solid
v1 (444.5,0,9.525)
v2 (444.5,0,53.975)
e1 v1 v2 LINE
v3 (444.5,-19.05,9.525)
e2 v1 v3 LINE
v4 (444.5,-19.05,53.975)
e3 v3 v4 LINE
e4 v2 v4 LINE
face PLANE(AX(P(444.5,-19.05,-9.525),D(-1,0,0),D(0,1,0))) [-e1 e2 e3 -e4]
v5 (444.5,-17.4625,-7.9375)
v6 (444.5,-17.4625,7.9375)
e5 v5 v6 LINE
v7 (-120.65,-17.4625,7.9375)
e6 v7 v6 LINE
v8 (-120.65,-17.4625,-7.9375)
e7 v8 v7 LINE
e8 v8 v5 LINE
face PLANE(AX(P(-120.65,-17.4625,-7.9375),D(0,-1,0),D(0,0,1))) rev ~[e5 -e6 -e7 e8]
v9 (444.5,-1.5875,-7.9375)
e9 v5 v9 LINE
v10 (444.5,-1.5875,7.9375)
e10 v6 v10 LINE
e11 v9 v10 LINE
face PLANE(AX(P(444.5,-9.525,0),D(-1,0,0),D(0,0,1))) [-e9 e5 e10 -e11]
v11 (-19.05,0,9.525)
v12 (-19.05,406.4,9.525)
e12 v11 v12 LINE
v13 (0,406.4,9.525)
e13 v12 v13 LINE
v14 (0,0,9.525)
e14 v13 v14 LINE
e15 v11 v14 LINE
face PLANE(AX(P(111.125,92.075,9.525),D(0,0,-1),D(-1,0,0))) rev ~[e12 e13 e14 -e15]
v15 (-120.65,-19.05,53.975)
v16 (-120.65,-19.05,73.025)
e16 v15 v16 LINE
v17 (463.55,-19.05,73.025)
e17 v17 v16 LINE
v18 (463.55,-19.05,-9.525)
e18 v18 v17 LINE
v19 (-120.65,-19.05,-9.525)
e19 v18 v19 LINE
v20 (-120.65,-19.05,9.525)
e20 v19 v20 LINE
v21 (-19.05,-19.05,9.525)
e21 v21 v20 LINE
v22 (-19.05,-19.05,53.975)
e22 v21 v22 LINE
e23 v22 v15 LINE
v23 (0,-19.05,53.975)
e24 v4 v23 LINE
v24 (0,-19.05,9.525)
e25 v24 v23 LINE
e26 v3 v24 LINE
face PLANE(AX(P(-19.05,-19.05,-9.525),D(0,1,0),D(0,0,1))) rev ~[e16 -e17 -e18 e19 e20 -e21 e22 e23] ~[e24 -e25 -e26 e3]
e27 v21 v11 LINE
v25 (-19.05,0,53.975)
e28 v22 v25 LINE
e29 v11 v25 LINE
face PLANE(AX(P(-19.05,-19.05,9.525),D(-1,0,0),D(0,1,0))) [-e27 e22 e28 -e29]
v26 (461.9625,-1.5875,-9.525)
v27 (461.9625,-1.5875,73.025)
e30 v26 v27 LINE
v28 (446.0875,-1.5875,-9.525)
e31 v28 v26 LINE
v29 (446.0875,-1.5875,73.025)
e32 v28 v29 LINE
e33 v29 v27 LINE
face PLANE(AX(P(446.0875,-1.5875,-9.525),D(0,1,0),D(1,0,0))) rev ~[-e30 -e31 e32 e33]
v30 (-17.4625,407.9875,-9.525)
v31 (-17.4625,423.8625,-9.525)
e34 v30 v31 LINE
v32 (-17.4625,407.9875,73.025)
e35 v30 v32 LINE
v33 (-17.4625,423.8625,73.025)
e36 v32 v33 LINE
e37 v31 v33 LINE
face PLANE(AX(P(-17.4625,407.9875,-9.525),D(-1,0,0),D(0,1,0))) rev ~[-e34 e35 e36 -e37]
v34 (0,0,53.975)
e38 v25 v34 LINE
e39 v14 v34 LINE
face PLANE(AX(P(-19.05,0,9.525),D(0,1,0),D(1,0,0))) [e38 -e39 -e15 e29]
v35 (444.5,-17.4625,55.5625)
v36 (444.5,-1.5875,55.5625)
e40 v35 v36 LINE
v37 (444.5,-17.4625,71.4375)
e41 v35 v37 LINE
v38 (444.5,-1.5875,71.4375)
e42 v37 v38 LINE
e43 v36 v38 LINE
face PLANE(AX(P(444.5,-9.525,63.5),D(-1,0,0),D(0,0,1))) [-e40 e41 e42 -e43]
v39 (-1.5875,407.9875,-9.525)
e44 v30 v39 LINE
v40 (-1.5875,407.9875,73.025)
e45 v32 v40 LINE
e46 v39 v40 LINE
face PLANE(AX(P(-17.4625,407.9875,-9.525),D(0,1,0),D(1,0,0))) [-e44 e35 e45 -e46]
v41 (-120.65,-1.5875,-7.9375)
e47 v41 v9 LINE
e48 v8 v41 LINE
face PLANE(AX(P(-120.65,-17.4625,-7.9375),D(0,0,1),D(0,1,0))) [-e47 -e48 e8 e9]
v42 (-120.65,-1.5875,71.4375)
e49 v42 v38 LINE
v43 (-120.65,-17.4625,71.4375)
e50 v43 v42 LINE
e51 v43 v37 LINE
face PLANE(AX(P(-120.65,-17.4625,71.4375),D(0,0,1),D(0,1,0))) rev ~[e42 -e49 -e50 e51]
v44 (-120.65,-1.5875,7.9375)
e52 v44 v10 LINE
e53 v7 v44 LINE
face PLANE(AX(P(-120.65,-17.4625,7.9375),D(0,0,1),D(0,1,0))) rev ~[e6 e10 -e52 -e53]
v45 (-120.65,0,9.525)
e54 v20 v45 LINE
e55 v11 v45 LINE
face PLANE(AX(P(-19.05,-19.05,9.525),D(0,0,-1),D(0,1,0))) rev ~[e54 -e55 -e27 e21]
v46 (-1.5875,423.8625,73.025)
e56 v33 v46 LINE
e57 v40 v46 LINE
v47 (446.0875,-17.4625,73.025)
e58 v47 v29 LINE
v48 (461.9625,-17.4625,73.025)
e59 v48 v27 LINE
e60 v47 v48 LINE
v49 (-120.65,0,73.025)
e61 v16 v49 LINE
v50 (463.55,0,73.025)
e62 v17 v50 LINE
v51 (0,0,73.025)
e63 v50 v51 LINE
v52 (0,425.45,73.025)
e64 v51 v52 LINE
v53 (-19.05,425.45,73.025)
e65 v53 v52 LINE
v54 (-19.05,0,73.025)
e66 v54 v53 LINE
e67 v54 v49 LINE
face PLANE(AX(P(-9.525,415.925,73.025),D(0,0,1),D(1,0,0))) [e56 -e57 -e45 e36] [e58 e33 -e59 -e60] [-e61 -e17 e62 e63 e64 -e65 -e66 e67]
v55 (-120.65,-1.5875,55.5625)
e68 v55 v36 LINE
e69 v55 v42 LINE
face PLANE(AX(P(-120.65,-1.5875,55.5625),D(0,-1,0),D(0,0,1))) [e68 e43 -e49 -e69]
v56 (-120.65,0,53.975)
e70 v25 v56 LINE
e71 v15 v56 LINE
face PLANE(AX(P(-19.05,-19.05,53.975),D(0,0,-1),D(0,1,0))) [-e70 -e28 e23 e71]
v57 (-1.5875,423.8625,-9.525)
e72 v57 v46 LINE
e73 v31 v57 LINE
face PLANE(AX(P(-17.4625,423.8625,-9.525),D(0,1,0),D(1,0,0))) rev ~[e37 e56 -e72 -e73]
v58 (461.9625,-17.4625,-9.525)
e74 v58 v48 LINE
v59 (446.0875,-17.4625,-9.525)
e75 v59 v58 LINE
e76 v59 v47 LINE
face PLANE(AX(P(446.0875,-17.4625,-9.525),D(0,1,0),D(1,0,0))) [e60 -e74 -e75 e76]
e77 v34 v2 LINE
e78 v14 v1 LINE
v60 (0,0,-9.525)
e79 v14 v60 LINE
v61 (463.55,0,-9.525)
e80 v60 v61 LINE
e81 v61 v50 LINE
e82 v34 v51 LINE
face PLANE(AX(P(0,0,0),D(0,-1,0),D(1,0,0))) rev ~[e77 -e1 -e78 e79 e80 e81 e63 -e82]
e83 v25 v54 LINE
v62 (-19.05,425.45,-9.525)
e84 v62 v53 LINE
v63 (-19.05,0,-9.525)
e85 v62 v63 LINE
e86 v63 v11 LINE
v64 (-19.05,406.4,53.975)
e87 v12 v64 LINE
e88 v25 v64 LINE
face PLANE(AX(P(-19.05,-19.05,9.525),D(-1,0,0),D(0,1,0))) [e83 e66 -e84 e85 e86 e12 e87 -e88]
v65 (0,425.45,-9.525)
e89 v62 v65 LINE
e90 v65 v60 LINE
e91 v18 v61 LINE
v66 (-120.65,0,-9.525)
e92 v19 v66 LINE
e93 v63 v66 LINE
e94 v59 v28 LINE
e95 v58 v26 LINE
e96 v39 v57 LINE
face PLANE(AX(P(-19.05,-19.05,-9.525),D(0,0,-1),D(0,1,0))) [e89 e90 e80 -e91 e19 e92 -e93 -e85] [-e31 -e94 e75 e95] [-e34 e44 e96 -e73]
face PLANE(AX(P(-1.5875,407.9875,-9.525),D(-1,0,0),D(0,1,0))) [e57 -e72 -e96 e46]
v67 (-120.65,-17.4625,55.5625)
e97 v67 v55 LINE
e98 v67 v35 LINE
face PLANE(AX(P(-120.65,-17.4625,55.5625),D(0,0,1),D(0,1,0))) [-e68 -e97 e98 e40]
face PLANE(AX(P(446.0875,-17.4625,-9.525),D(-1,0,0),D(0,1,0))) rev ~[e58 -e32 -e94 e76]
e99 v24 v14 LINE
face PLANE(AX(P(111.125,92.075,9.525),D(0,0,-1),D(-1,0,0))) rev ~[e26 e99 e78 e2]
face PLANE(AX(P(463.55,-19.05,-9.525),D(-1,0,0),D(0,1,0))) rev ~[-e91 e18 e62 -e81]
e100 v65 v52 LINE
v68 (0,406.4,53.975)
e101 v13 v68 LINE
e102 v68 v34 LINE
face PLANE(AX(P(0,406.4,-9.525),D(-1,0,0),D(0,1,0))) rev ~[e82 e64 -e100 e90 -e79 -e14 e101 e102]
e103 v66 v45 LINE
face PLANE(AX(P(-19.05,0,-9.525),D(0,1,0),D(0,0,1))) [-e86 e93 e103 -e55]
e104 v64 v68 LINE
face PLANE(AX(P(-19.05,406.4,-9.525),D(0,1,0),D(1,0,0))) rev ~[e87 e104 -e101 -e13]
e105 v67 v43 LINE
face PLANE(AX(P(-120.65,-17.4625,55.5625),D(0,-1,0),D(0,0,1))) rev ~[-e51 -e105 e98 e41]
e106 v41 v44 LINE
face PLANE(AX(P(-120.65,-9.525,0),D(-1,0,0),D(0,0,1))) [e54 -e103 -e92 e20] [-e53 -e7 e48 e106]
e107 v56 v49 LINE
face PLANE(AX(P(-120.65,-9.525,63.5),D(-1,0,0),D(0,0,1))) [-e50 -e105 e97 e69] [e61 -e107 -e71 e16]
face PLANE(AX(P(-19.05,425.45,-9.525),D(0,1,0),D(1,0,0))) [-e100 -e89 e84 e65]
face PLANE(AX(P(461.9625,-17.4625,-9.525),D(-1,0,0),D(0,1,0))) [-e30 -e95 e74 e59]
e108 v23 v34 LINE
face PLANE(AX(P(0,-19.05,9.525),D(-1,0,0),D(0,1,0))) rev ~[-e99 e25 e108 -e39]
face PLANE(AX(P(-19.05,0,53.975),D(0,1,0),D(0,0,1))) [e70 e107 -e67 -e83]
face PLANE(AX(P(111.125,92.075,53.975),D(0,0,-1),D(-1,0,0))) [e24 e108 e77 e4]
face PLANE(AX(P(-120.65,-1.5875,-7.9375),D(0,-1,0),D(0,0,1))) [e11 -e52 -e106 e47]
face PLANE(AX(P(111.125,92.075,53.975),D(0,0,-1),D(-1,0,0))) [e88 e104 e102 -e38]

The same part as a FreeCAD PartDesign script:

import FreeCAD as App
import Part
import Sketcher
from FreeCAD import Vector
Q = App.Units.Quantity


def add_polygon(sketch, points):
    """Adds a closed chain of lines whose ends are joined by coincident constraints."""
    first, n = sketch.GeometryCount, len(points)
    for a, b in zip(points, points[1:] + points[:1]):
        sketch.addGeometry(Part.LineSegment(App.Vector(*a, 0), App.Vector(*b, 0)), False)
    for i in range(n):
        sketch.addConstraint(Sketcher.Constraint("Coincident", first + i, 2, first + (i + 1) % n, 1))

doc = App.newDocument("Part")
params = doc.addObject("Spreadsheet::Sheet", "Params")
for row, (alias, value) in enumerate([
    ("sketch1_height", "16 in"),
    ("sketch1_width", "17.5 in"),
    ("sketch1_width2", "18.25 in"),
    ("pad1_length", "0.75 in"),
    ("sketch2_height", "16 in"),
    ("sketch2_width", "17.5 in"),
    ("sketch2_width2", "18.25 in"),
    ("pad2_length", "0.75 in"),
    ("sketch3_width", "0.75 in"),
    ("sketch3_width2", "0.625 in"),
    ("pad3_length", "3.25 in"),
    ("sketch4_width", "0.75 in"),
    ("pad4_length", "1.75 in"),
    ("sketch5_width", "0.75 in"),
    ("pad5_length", "4 in"),
    ("sketch6_width", "0.625 in"),
    ("pocket1_length", "22.25 in"),
], start=1):
    params.set(f"A{row}", alias)
    params.set(f"B{row}", "=" + value)
    params.setAlias(f"B{row}", alias)

body = doc.addObject("PartDesign::Body", "Body")

# Sketch on XY plane
sketch1 = doc.addObject("Sketcher::SketchObject", "Sketch")
body.addObject(sketch1)
sketch1.AttachmentSupport = (doc.XY_Plane, [""])
sketch1.MapMode = "FlatFace"
add_polygon(sketch1, [(-19, 406), (-19, -19), (444, -19), (444, 0), (0, 0), (0, 406)])  # lines 0-5
sketch1.addConstraint(Sketcher.Constraint("Vertical", 0))
sketch1.addConstraint(Sketcher.Constraint("Horizontal", 1))
sketch1.addConstraint(Sketcher.Constraint("Vertical", 2))
sketch1.addConstraint(Sketcher.Constraint("Horizontal", 3))
sketch1.addConstraint(Sketcher.Constraint("Vertical", 4))
sketch1.addConstraint(Sketcher.Constraint("Horizontal", 5))
sketch1.addConstraint(Sketcher.Constraint("Coincident", 3, 2, -1, 1))
sketch1.addConstraint(Sketcher.Constraint("Equal", 5, 2))
sketch1.addConstraint(Sketcher.Constraint("DistanceY", 4, 1, 4, 2, Q("16 in")))
sketch1.addConstraint(Sketcher.Constraint("DistanceX", 3, 2, 3, 1, Q("17.5 in")))
sketch1.addConstraint(Sketcher.Constraint("DistanceX", 1, 1, 1, 2, Q("18.25 in")))
sketch1.setExpression("Constraints[14]", "Params.sketch1_height")
sketch1.setExpression("Constraints[15]", "Params.sketch1_width")
sketch1.setExpression("Constraints[16]", "Params.sketch1_width2")
pad1 = doc.addObject("PartDesign::Pad", "Pad")
body.addObject(pad1)
pad1.Profile = sketch1
pad1.setExpression("Length", "Params.pad1_length")
pad1.Midplane = True
body2 = doc.addObject("PartDesign::Body", "Body001")

# Sketch on XY plane
sketch2 = doc.addObject("Sketcher::SketchObject", "Sketch001")
body2.addObject(sketch2)
sketch2.AttachmentSupport = (doc.getObject("XY_Plane001"), [""])
sketch2.MapMode = "FlatFace"
sketch2.AttachmentOffset = App.Placement(Vector(0, 0, 2.125 * 25.4), App.Rotation())
add_polygon(sketch2, [(-19, 406), (-19, -19), (444, -19), (444, 0), (0, 0), (0, 406)])  # lines 0-5
sketch2.addConstraint(Sketcher.Constraint("Vertical", 0))
sketch2.addConstraint(Sketcher.Constraint("Horizontal", 1))
sketch2.addConstraint(Sketcher.Constraint("Vertical", 2))
sketch2.addConstraint(Sketcher.Constraint("Horizontal", 3))
sketch2.addConstraint(Sketcher.Constraint("Vertical", 4))
sketch2.addConstraint(Sketcher.Constraint("Horizontal", 5))
sketch2.addConstraint(Sketcher.Constraint("Coincident", 3, 2, -1, 1))
sketch2.addConstraint(Sketcher.Constraint("Equal", 5, 2))
sketch2.addConstraint(Sketcher.Constraint("DistanceY", 4, 1, 4, 2, Q("16 in")))
sketch2.addConstraint(Sketcher.Constraint("DistanceX", 3, 2, 3, 1, Q("17.5 in")))
sketch2.addConstraint(Sketcher.Constraint("DistanceX", 1, 1, 1, 2, Q("18.25 in")))
sketch2.setExpression("Constraints[14]", "Params.sketch2_height")
sketch2.setExpression("Constraints[15]", "Params.sketch2_width")
sketch2.setExpression("Constraints[16]", "Params.sketch2_width2")
pad2 = doc.addObject("PartDesign::Pad", "Pad001")
body2.addObject(pad2)
pad2.Profile = sketch2
pad2.setExpression("Length", "Params.pad2_length")
body.AllowCompound = True
doc.recompute()

boolean = doc.addObject("PartDesign::Boolean", "Boolean")
body.addObject(boolean)
boolean.Type = "Fuse"
boolean.addObjects([body2])

# Sketch on XY plane
sketch3 = doc.addObject("Sketcher::SketchObject", "Sketch002")
body.addObject(sketch3)
sketch3.AttachmentSupport = (doc.XY_Plane, [""])
sketch3.MapMode = "FlatFace"
sketch3.AttachmentOffset = App.Placement(Vector(0, 0, -0.375 * 25.4), App.Rotation())
add_polygon(sketch3, [(-19, 425), (-19, 406), (0, 406), (0, 425)])  # lines 0-3
add_polygon(sketch3, [(-2, 408), (-17, 408), (-17, 424), (-2, 424)])  # lines 4-7
add_polygon(sketch3, [(444, 0), (444, -19), (464, -19), (464, 0)])  # lines 8-11
add_polygon(sketch3, [(462, -17), (446, -17), (446, -2), (462, -2)])  # lines 12-15
sketch3.addConstraint(Sketcher.Constraint("Vertical", 0))
sketch3.addConstraint(Sketcher.Constraint("Horizontal", 1))
sketch3.addConstraint(Sketcher.Constraint("Vertical", 2))
sketch3.addConstraint(Sketcher.Constraint("Horizontal", 3))
sketch3.addConstraint(Sketcher.Constraint("Horizontal", 4))
sketch3.addConstraint(Sketcher.Constraint("Vertical", 5))
sketch3.addConstraint(Sketcher.Constraint("Horizontal", 6))
sketch3.addConstraint(Sketcher.Constraint("Vertical", 7))
sketch3.addConstraint(Sketcher.Constraint("Vertical", 8))
sketch3.addConstraint(Sketcher.Constraint("Horizontal", 9))
sketch3.addConstraint(Sketcher.Constraint("Vertical", 10))
sketch3.addConstraint(Sketcher.Constraint("Horizontal", 11))
sketch3.addConstraint(Sketcher.Constraint("Horizontal", 12))
sketch3.addConstraint(Sketcher.Constraint("Vertical", 13))
sketch3.addConstraint(Sketcher.Constraint("Horizontal", 14))
sketch3.addConstraint(Sketcher.Constraint("Vertical", 15))
sketch3.addConstraint(Sketcher.Constraint("PointOnObject", 1, 2, -2))
sketch3.addConstraint(Sketcher.Constraint("PointOnObject", 10, 2, -1))
sketch3.addConstraint(Sketcher.Constraint("Equal", 3, 9))
sketch3.addConstraint(Sketcher.Constraint("Equal", 6, 12))
sketch3.addConstraint(Sketcher.Constraint("Equal", 11, 0))
sketch3.addConstraint(Sketcher.Constraint("Equal", 14, 5))
sketch3.addConstraint(Sketcher.Constraint("Equal", 2, 8))
sketch3.addConstraint(Sketcher.Constraint("Equal", 7, 13))
sketch3.addConstraint(Sketcher.Constraint("DistanceY", -1, 1, 0, 2, Q("16 in")))
sketch3.addConstraint(Sketcher.Constraint("DistanceX", 1, 1, 1, 2, Q("0.75 in")))
sketch3.addConstraint(Sketcher.Constraint("DistanceX", -1, 1, 8, 2, Q("17.5 in")))
sketch3.addConstraint(Sketcher.Constraint("DistanceX", 4, 2, 4, 1, Q("0.625 in")))
sketch3.addConstraint(Sketcher.Constraint("DistanceX", 4, 2, -1, 1, Q("0.6875 in")))
sketch3.addConstraint(Sketcher.Constraint("DistanceY", -1, 1, 4, 2, Q("16.0625 in")))
sketch3.addConstraint(Sketcher.Constraint("DistanceX", -1, 1, 12, 2, Q("17.5625 in")))
sketch3.addConstraint(Sketcher.Constraint("DistanceY", 12, 2, -1, 1, Q("0.6875 in")))
sketch3.setExpression("Constraints[41]", "Params.sketch3_width")
sketch3.setExpression("Constraints[43]", "Params.sketch3_width2")
pad3 = doc.addObject("PartDesign::Pad", "Pad002")
body.addObject(pad3)
pad3.Profile = sketch3
pad3.setExpression("Length", "Params.pad3_length")

# Sketch on XY plane
sketch4 = doc.addObject("Sketcher::SketchObject", "Sketch003")
body.addObject(sketch4)
sketch4.AttachmentSupport = (doc.XY_Plane, [""])
sketch4.MapMode = "FlatFace"
sketch4.AttachmentOffset = App.Placement(Vector(0, 0, 0.375 * 25.4), App.Rotation())
add_polygon(sketch4, [(-19, 0), (-19, -19), (0, -19), (0, 0)])  # lines 0-3
sketch4.addConstraint(Sketcher.Constraint("Vertical", 0))
sketch4.addConstraint(Sketcher.Constraint("Horizontal", 1))
sketch4.addConstraint(Sketcher.Constraint("Vertical", 2))
sketch4.addConstraint(Sketcher.Constraint("Horizontal", 3))
sketch4.addConstraint(Sketcher.Constraint("Coincident", 2, 2, -1, 1))
sketch4.addConstraint(Sketcher.Constraint("Equal", 3, 0))
sketch4.addConstraint(Sketcher.Constraint("DistanceX", 1, 1, 1, 2, Q("0.75 in")))
sketch4.setExpression("Constraints[10]", "Params.sketch4_width")
pad4 = doc.addObject("PartDesign::Pad", "Pad003")
body.addObject(pad4)
pad4.Profile = sketch4
pad4.setExpression("Length", "Params.pad4_length")

# Sketch on YZ plane
sketch5 = doc.addObject("Sketcher::SketchObject", "Sketch004")
body.addObject(sketch5)
sketch5.AttachmentSupport = (doc.YZ_Plane, [""])
sketch5.MapMode = "FlatFace"
sketch5.AttachmentOffset = App.Placement(Vector(0, 0, -0.75 * 25.4), App.Rotation())
add_polygon(sketch5, [(0, -10), (-19, -10), (-19, 10), (0, 10)])  # lines 0-3
add_polygon(sketch5, [(0, 54), (-19, 54), (-19, 73), (0, 73)])  # lines 4-7
sketch5.addConstraint(Sketcher.Constraint("Horizontal", 0))
sketch5.addConstraint(Sketcher.Constraint("Vertical", 1))
sketch5.addConstraint(Sketcher.Constraint("Horizontal", 2))
sketch5.addConstraint(Sketcher.Constraint("Vertical", 3))
sketch5.addConstraint(Sketcher.Constraint("Horizontal", 4))
sketch5.addConstraint(Sketcher.Constraint("Vertical", 5))
sketch5.addConstraint(Sketcher.Constraint("Horizontal", 6))
sketch5.addConstraint(Sketcher.Constraint("Vertical", 7))
sketch5.addConstraint(Sketcher.Constraint("Symmetric", 2, 2, 3, 2, -1, 1))
sketch5.addConstraint(Sketcher.Constraint("PointOnObject", 6, 2, -2))
sketch5.addConstraint(Sketcher.Constraint("Vertical", 1, 2, 4, 2))
sketch5.addConstraint(Sketcher.Constraint("Equal", 6, 1))
sketch5.addConstraint(Sketcher.Constraint("Equal", 3, 5))
sketch5.addConstraint(Sketcher.Constraint("DistanceX", 0, 2, 0, 1, Q("0.75 in")))
sketch5.addConstraint(Sketcher.Constraint("DistanceY", 0, 2, 4, 2, Q("2.5 in")))
sketch5.setExpression("Constraints[21]", "Params.sketch5_width")
pad5 = doc.addObject("PartDesign::Pad", "Pad004")
body.addObject(pad5)
pad5.Profile = sketch5
pad5.setExpression("Length", "Params.pad5_length")
pad5.Reversed = True

# Sketch on YZ plane
sketch6 = doc.addObject("Sketcher::SketchObject", "Sketch005")
body.addObject(sketch6)
sketch6.AttachmentSupport = (doc.YZ_Plane, [""])
sketch6.MapMode = "FlatFace"
sketch6.AttachmentOffset = App.Placement(Vector(0, 0, -4.75 * 25.4), App.Rotation())
add_polygon(sketch6, [(-2, -8), (-17, -8), (-17, 8), (-2, 8)])  # lines 0-3
add_polygon(sketch6, [(-2, 56), (-17, 56), (-17, 71), (-2, 71)])  # lines 4-7
sketch6.addConstraint(Sketcher.Constraint("Horizontal", 0))
sketch6.addConstraint(Sketcher.Constraint("Vertical", 1))
sketch6.addConstraint(Sketcher.Constraint("Horizontal", 2))
sketch6.addConstraint(Sketcher.Constraint("Vertical", 3))
sketch6.addConstraint(Sketcher.Constraint("Horizontal", 4))
sketch6.addConstraint(Sketcher.Constraint("Vertical", 5))
sketch6.addConstraint(Sketcher.Constraint("Horizontal", 6))
sketch6.addConstraint(Sketcher.Constraint("Vertical", 7))
sketch6.addConstraint(Sketcher.Constraint("Vertical", 1, 2, 4, 2))
sketch6.addConstraint(Sketcher.Constraint("Vertical", 3, 2, 6, 2))
sketch6.addConstraint(Sketcher.Constraint("Equal", 6, 1))
sketch6.addConstraint(Sketcher.Constraint("Equal", 3, 5))
sketch6.addConstraint(Sketcher.Constraint("DistanceY", 0, 2, 4, 2, Q("2.5 in")))
sketch6.addConstraint(Sketcher.Constraint("DistanceX", 0, 2, 0, 1, Q("0.625 in")))
sketch6.addConstraint(Sketcher.Constraint("DistanceX", 0, 2, -1, 1, Q("0.6875 in")))
sketch6.addConstraint(Sketcher.Constraint("DistanceY", 0, 2, -1, 1, Q("0.3125 in")))
sketch6.setExpression("Constraints[21]", "Params.sketch6_width")
pocket1 = doc.addObject("PartDesign::Pocket", "Pocket")
body.addObject(pocket1)
pocket1.Profile = sketch6
pocket1.setExpression("Length", "Params.pocket1_length")
pocket1.Reversed = True

doc.recompute()
